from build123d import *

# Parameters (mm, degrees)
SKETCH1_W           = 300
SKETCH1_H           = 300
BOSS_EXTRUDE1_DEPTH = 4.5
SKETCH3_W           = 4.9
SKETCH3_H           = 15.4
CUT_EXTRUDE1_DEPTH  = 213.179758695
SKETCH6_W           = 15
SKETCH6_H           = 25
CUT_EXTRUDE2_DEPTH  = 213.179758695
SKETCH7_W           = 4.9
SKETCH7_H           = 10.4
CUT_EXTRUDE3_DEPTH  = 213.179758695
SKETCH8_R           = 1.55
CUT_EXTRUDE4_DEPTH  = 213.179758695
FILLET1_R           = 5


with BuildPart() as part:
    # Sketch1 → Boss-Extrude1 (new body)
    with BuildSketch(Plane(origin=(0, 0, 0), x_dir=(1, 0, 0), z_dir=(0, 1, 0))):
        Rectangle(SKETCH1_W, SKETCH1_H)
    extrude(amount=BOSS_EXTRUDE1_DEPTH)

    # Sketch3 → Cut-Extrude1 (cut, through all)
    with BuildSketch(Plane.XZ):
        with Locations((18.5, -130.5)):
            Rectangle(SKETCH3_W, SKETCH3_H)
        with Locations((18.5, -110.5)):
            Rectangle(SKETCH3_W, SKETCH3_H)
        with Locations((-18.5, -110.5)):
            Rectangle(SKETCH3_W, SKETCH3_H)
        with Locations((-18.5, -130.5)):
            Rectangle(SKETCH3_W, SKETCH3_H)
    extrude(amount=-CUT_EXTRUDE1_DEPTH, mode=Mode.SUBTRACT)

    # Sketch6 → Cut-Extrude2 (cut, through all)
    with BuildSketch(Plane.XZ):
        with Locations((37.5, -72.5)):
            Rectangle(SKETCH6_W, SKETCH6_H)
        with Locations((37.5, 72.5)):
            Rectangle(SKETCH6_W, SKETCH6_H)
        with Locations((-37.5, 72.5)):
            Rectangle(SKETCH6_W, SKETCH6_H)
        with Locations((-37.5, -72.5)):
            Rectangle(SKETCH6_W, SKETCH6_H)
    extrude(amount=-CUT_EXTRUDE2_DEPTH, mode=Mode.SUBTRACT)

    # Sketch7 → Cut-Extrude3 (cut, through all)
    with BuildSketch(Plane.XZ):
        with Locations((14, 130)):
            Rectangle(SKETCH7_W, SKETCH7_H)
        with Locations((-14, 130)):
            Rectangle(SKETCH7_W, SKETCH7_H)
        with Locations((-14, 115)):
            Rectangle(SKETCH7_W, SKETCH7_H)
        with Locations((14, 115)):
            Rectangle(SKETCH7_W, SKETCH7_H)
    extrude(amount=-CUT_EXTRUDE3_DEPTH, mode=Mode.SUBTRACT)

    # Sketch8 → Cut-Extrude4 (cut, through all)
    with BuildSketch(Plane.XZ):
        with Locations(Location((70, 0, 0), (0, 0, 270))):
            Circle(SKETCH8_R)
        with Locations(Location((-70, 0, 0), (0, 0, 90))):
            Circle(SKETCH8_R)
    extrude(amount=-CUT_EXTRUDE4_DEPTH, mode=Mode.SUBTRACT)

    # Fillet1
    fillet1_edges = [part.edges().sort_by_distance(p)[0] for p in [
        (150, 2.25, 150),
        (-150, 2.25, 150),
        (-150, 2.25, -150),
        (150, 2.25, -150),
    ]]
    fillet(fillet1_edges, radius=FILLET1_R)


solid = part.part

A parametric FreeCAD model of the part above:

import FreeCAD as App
import Part
import Sketcher
from FreeCAD import Vector
Q = App.Units.Quantity


def edges_at(feature, points):
    """Names of the edges that pass closest to the given points."""
    edges = feature.Shape.Edges
    near = lambda p: min(range(len(edges)), key=lambda i: edges[i].distToShape(Part.Vertex(*p))[0])
    return sorted({f"Edge{near(p) + 1}" for p in points})

doc = App.newDocument("Part")
params = doc.addObject("Spreadsheet::Sheet", "Params")
for row, (alias, value) in enumerate([
    ("sketch1_width", "300 mm"),
    ("pad1_length", "4.5 mm"),
    ("sketch2_width", "4.9 mm"),
    ("sketch2_height", "15.4 mm"),
    ("sketch3_width", "15 mm"),
    ("sketch3_height", "25 mm"),
    ("sketch4_width", "4.9 mm"),
    ("sketch4_height", "10.4 mm"),
    ("sketch5_diameter", "3.1 mm"),
    ("fillet_radius", "5 mm"),
], start=1):
    params.set(f"A{row}", alias)
    params.set(f"B{row}", "=" + value)
    params.setAlias(f"B{row}", alias)

body = doc.addObject("PartDesign::Body", "Body")

# Sketch on XZ plane
sketch1 = body.newObject("Sketcher::SketchObject", "Sketch")
sketch1.AttachmentSupport = (doc.getObject("XZ_Plane"), [""])
sketch1.MapMode = "FlatFace"
sketch1.addGeometry([
    Part.LineSegment(Vector(-150, -150, 0), Vector(-150, 150, 0)),
    Part.LineSegment(Vector(-150, 150, 0), Vector(150, 150, 0)),
    Part.LineSegment(Vector(150, 150, 0), Vector(150, -150, 0)),
    Part.LineSegment(Vector(150, -150, 0), Vector(-150, -150, 0)),
], False)
sketch1.addConstraint([
    Sketcher.Constraint("Coincident", 0, 2, 1, 1),
    Sketcher.Constraint("Coincident", 1, 2, 2, 1),
    Sketcher.Constraint("Coincident", 2, 2, 3, 1),
    Sketcher.Constraint("Coincident", 3, 2, 0, 1),
    Sketcher.Constraint("Vertical", 0),
    Sketcher.Constraint("Horizontal", 1),
    Sketcher.Constraint("Vertical", 2),
    Sketcher.Constraint("Horizontal", 3),
    Sketcher.Constraint("Symmetric", 0, 2, 2, 2, -1, 1),
    Sketcher.Constraint("Equal", 3, 0),
    Sketcher.Constraint("DistanceX", 1, 1, 1, 2, Q("300 mm")),
])
sketch1.setExpression("Constraints[10]", "Params.sketch1_width")
pad1 = body.newObject("PartDesign::Pad", "Pad")
pad1.Profile = sketch1
pad1.setExpression("Length", "Params.pad1_length")
pad1.Reversed = True

# Sketch on XZ plane
sketch2 = body.newObject("Sketcher::SketchObject", "Sketch001")
sketch2.AttachmentSupport = (doc.getObject("XZ_Plane"), [""])
sketch2.MapMode = "FlatFace"
sketch2.addGeometry([
    Part.LineSegment(Vector(16.1, -122.8, 0), Vector(16.1, -138.2, 0)),  # 0
    Part.LineSegment(Vector(16.1, -138.2, 0), Vector(20.9, -138.2, 0)),  # 1
    Part.LineSegment(Vector(20.9, -138.2, 0), Vector(20.9, -122.8, 0)),  # 2
    Part.LineSegment(Vector(20.9, -122.8, 0), Vector(16.1, -122.8, 0)),  # 3
    Part.LineSegment(Vector(16.1, -102.8, 0), Vector(16.1, -118.2, 0)),  # 4
    Part.LineSegment(Vector(16.1, -118.2, 0), Vector(20.9, -118.2, 0)),  # 5
    Part.LineSegment(Vector(20.9, -118.2, 0), Vector(20.9, -102.8, 0)),  # 6
    Part.LineSegment(Vector(20.9, -102.8, 0), Vector(16.1, -102.8, 0)),  # 7
    Part.LineSegment(Vector(-20.9, -102.8, 0), Vector(-20.9, -118.2, 0)),  # 8
    Part.LineSegment(Vector(-20.9, -118.2, 0), Vector(-16.1, -118.2, 0)),  # 9
    Part.LineSegment(Vector(-16.1, -118.2, 0), Vector(-16.1, -102.8, 0)),  # 10
    Part.LineSegment(Vector(-16.1, -102.8, 0), Vector(-20.9, -102.8, 0)),  # 11
    Part.LineSegment(Vector(-20.9, -122.8, 0), Vector(-20.9, -138.2, 0)),  # 12
    Part.LineSegment(Vector(-20.9, -138.2, 0), Vector(-16.1, -138.2, 0)),  # 13
    Part.LineSegment(Vector(-16.1, -138.2, 0), Vector(-16.1, -122.8, 0)),  # 14
    Part.LineSegment(Vector(-16.1, -122.8, 0), Vector(-20.9, -122.8, 0)),  # 15
], False)
sketch2.addConstraint([
    Sketcher.Constraint("Coincident", 0, 2, 1, 1),
    Sketcher.Constraint("Coincident", 1, 2, 2, 1),
    Sketcher.Constraint("Coincident", 2, 2, 3, 1),
    Sketcher.Constraint("Coincident", 3, 2, 0, 1),
    Sketcher.Constraint("Coincident", 4, 2, 5, 1),
    Sketcher.Constraint("Coincident", 5, 2, 6, 1),
    Sketcher.Constraint("Coincident", 6, 2, 7, 1),
    Sketcher.Constraint("Coincident", 7, 2, 4, 1),
    Sketcher.Constraint("Coincident", 8, 2, 9, 1),
    Sketcher.Constraint("Coincident", 9, 2, 10, 1),
    Sketcher.Constraint("Coincident", 10, 2, 11, 1),
    Sketcher.Constraint("Coincident", 11, 2, 8, 1),
    Sketcher.Constraint("Coincident", 12, 2, 13, 1),
    Sketcher.Constraint("Coincident", 13, 2, 14, 1),
    Sketcher.Constraint("Coincident", 14, 2, 15, 1),
    Sketcher.Constraint("Coincident", 15, 2, 12, 1),
    Sketcher.Constraint("Vertical", 0),
    Sketcher.Constraint("Horizontal", 1),
    Sketcher.Constraint("Vertical", 2),
    Sketcher.Constraint("Horizontal", 3),
    Sketcher.Constraint("Vertical", 4),
    Sketcher.Constraint("Horizontal", 5),
    Sketcher.Constraint("Vertical", 6),
    Sketcher.Constraint("Horizontal", 7),
    Sketcher.Constraint("Vertical", 8),
    Sketcher.Constraint("Horizontal", 9),
    Sketcher.Constraint("Vertical", 10),
    Sketcher.Constraint("Horizontal", 11),
    Sketcher.Constraint("Vertical", 12),
    Sketcher.Constraint("Horizontal", 13),
    Sketcher.Constraint("Vertical", 14),
    Sketcher.Constraint("Horizontal", 15),
    Sketcher.Constraint("Symmetric", 5, 2, 8, 2, -2),
    Sketcher.Constraint("Symmetric", 7, 2, 10, 2, -2),
    Sketcher.Constraint("Symmetric", 1, 2, 12, 2, -2),
    Sketcher.Constraint("Symmetric", 3, 2, 14, 2, -2),
    Sketcher.Constraint("Vertical", 3, 2, 4, 2),
    Sketcher.Constraint("Vertical", 2, 2, 5, 2),
    Sketcher.Constraint("Equal", 2, 4),
    Sketcher.Constraint("DistanceX", 1, 1, 1, 2, Q("4.9 mm")),
    Sketcher.Constraint("DistanceY", 0, 2, 0, 1, Q("15.4 mm")),
    Sketcher.Constraint("DistanceY", 0, 2, 4, 2, Q("20 mm")),
    Sketcher.Constraint("DistanceX", 8, 2, 4, 2, Q("37 mm")),
    Sketcher.Constraint("DistanceY", 0, 2, -1, 1, Q("138.2 mm")),
])
sketch2.setExpression("Constraints[39]", "Params.sketch2_width")
sketch2.setExpression("Constraints[40]", "Params.sketch2_height")
pocket1 = body.newObject("PartDesign::Pocket", "Pocket")
pocket1.Profile = sketch2
pocket1.Type = "ThroughAll"

# Sketch on XZ plane
sketch3 = body.newObject("Sketcher::SketchObject", "Sketch002")
sketch3.AttachmentSupport = (doc.getObject("XZ_Plane"), [""])
sketch3.MapMode = "FlatFace"
sketch3.addGeometry([
    Part.LineSegment(Vector(30, -60, 0), Vector(30, -85, 0)),  # 0
    Part.LineSegment(Vector(30, -85, 0), Vector(45, -85, 0)),  # 1
    Part.LineSegment(Vector(45, -85, 0), Vector(45, -60, 0)),  # 2
    Part.LineSegment(Vector(45, -60, 0), Vector(30, -60, 0)),  # 3
    Part.LineSegment(Vector(30, 85, 0), Vector(30, 60, 0)),  # 4
    Part.LineSegment(Vector(30, 60, 0), Vector(45, 60, 0)),  # 5
    Part.LineSegment(Vector(45, 60, 0), Vector(45, 85, 0)),  # 6
    Part.LineSegment(Vector(45, 85, 0), Vector(30, 85, 0)),  # 7
    Part.LineSegment(Vector(-45, 85, 0), Vector(-45, 60, 0)),  # 8
    Part.LineSegment(Vector(-45, 60, 0), Vector(-30, 60, 0)),  # 9
    Part.LineSegment(Vector(-30, 60, 0), Vector(-30, 85, 0)),  # 10
    Part.LineSegment(Vector(-30, 85, 0), Vector(-45, 85, 0)),  # 11
    Part.LineSegment(Vector(-45, -60, 0), Vector(-45, -85, 0)),  # 12
    Part.LineSegment(Vector(-45, -85, 0), Vector(-30, -85, 0)),  # 13
    Part.LineSegment(Vector(-30, -85, 0), Vector(-30, -60, 0)),  # 14
    Part.LineSegment(Vector(-30, -60, 0), Vector(-45, -60, 0)),  # 15
], False)
sketch3.addConstraint([
    Sketcher.Constraint("Coincident", 0, 2, 1, 1),
    Sketcher.Constraint("Coincident", 1, 2, 2, 1),
    Sketcher.Constraint("Coincident", 2, 2, 3, 1),
    Sketcher.Constraint("Coincident", 3, 2, 0, 1),
    Sketcher.Constraint("Coincident", 4, 2, 5, 1),
    Sketcher.Constraint("Coincident", 5, 2, 6, 1),
    Sketcher.Constraint("Coincident", 6, 2, 7, 1),
    Sketcher.Constraint("Coincident", 7, 2, 4, 1),
    Sketcher.Constraint("Coincident", 8, 2, 9, 1),
    Sketcher.Constraint("Coincident", 9, 2, 10, 1),
    Sketcher.Constraint("Coincident", 10, 2, 11, 1),
    Sketcher.Constraint("Coincident", 11, 2, 8, 1),
    Sketcher.Constraint("Coincident", 12, 2, 13, 1),
    Sketcher.Constraint("Coincident", 13, 2, 14, 1),
    Sketcher.Constraint("Coincident", 14, 2, 15, 1),
    Sketcher.Constraint("Coincident", 15, 2, 12, 1),
    Sketcher.Constraint("Vertical", 0),
    Sketcher.Constraint("Horizontal", 1),
    Sketcher.Constraint("Vertical", 2),
    Sketcher.Constraint("Horizontal", 3),
    Sketcher.Constraint("Vertical", 4),
    Sketcher.Constraint("Horizontal", 5),
    Sketcher.Constraint("Vertical", 6),
    Sketcher.Constraint("Horizontal", 7),
    Sketcher.Constraint("Vertical", 8),
    Sketcher.Constraint("Horizontal", 9),
    Sketcher.Constraint("Vertical", 10),
    Sketcher.Constraint("Horizontal", 11),
    Sketcher.Constraint("Vertical", 12),
    Sketcher.Constraint("Horizontal", 13),
    Sketcher.Constraint("Vertical", 14),
    Sketcher.Constraint("Horizontal", 15),
    Sketcher.Constraint("Symmetric", 2, 2, 8, 2, -1, 1),
    Sketcher.Constraint("Symmetric", 0, 2, 10, 2, -1, 1),
    Sketcher.Constraint("Symmetric", 6, 2, 12, 2, -1, 1),
    Sketcher.Constraint("Symmetric", 4, 2, 14, 2, -1, 1),
    Sketcher.Constraint("Symmetric", 5, 2, 8, 2, -2),
    Sketcher.Constraint("Symmetric", 7, 2, 10, 2, -2),
    Sketcher.Constraint("DistanceX", 1, 1, 1, 2, Q("15 mm")),
    Sketcher.Constraint("DistanceY", 0, 2, 0, 1, Q("25 mm")),
    Sketcher.Constraint("DistanceX", -1, 1, 0, 2, Q("30 mm")),
    Sketcher.Constraint("DistanceY", 0, 2, -1, 1, Q("85 mm")),
])
sketch3.setExpression("Constraints[38]", "Params.sketch3_width")
sketch3.setExpression("Constraints[39]", "Params.sketch3_height")
pocket2 = body.newObject("PartDesign::Pocket", "Pocket001")
pocket2.Profile = sketch3
pocket2.Type = "ThroughAll"

# Sketch on XZ plane
sketch4 = body.newObject("Sketcher::SketchObject", "Sketch003")
sketch4.AttachmentSupport = (doc.getObject("XZ_Plane"), [""])
sketch4.MapMode = "FlatFace"
sketch4.addGeometry([
    Part.LineSegment(Vector(11.6, 135.2, 0), Vector(11.6, 124.8, 0)),  # 0
    Part.LineSegment(Vector(11.6, 124.8, 0), Vector(16.4, 124.8, 0)),  # 1
    Part.LineSegment(Vector(16.4, 124.8, 0), Vector(16.4, 135.2, 0)),  # 2
    Part.LineSegment(Vector(16.4, 135.2, 0), Vector(11.6, 135.2, 0)),  # 3
    Part.LineSegment(Vector(-16.4, 135.2, 0), Vector(-16.4, 124.8, 0)),  # 4
    Part.LineSegment(Vector(-16.4, 124.8, 0), Vector(-11.6, 124.8, 0)),  # 5
    Part.LineSegment(Vector(-11.6, 124.8, 0), Vector(-11.6, 135.2, 0)),  # 6
    Part.LineSegment(Vector(-11.6, 135.2, 0), Vector(-16.4, 135.2, 0)),  # 7
    Part.LineSegment(Vector(-16.4, 120.2, 0), Vector(-16.4, 109.8, 0)),  # 8
    Part.LineSegment(Vector(-16.4, 109.8, 0), Vector(-11.6, 109.8, 0)),  # 9
    Part.LineSegment(Vector(-11.6, 109.8, 0), Vector(-11.6, 120.2, 0)),  # 10
    Part.LineSegment(Vector(-11.6, 120.2, 0), Vector(-16.4, 120.2, 0)),  # 11
    Part.LineSegment(Vector(11.6, 120.2, 0), Vector(11.6, 109.8, 0)),  # 12
    Part.LineSegment(Vector(11.6, 109.8, 0), Vector(16.4, 109.8, 0)),  # 13
    Part.LineSegment(Vector(16.4, 109.8, 0), Vector(16.4, 120.2, 0)),  # 14
    Part.LineSegment(Vector(16.4, 120.2, 0), Vector(11.6, 120.2, 0)),  # 15
], False)
sketch4.addConstraint([
    Sketcher.Constraint("Coincident", 0, 2, 1, 1),
    Sketcher.Constraint("Coincident", 1, 2, 2, 1),
    Sketcher.Constraint("Coincident", 2, 2, 3, 1),
    Sketcher.Constraint("Coincident", 3, 2, 0, 1),
    Sketcher.Constraint("Coincident", 4, 2, 5, 1),
    Sketcher.Constraint("Coincident", 5, 2, 6, 1),
    Sketcher.Constraint("Coincident", 6, 2, 7, 1),
    Sketcher.Constraint("Coincident", 7, 2, 4, 1),
    Sketcher.Constraint("Coincident", 8, 2, 9, 1),
    Sketcher.Constraint("Coincident", 9, 2, 10, 1),
    Sketcher.Constraint("Coincident", 10, 2, 11, 1),
    Sketcher.Constraint("Coincident", 11, 2, 8, 1),
    Sketcher.Constraint("Coincident", 12, 2, 13, 1),
    Sketcher.Constraint("Coincident", 13, 2, 14, 1),
    Sketcher.Constraint("Coincident", 14, 2, 15, 1),
    Sketcher.Constraint("Coincident", 15, 2, 12, 1),
    Sketcher.Constraint("Vertical", 0),
    Sketcher.Constraint("Horizontal", 1),
    Sketcher.Constraint("Vertical", 2),
    Sketcher.Constraint("Horizontal", 3),
    Sketcher.Constraint("Vertical", 4),
    Sketcher.Constraint("Horizontal", 5),
    Sketcher.Constraint("Vertical", 6),
    Sketcher.Constraint("Horizontal", 7),
    Sketcher.Constraint("Vertical", 8),
    Sketcher.Constraint("Horizontal", 9),
    Sketcher.Constraint("Vertical", 10),
    Sketcher.Constraint("Horizontal", 11),
    Sketcher.Constraint("Vertical", 12),
    Sketcher.Constraint("Horizontal", 13),
    Sketcher.Constraint("Vertical", 14),
    Sketcher.Constraint("Horizontal", 15),
    Sketcher.Constraint("Symmetric", 1, 2, 4, 2, -2),
    Sketcher.Constraint("Symmetric", 3, 2, 6, 2, -2),
    Sketcher.Constraint("Symmetric", 9, 2, 12, 2, -2),
    Sketcher.Constraint("Symmetric", 11, 2, 14, 2, -2),
    Sketcher.Constraint("Vertical", 7, 2, 8, 2),
    Sketcher.Constraint("Vertical", 6, 2, 9, 2),
    Sketcher.Constraint("Equal", 6, 8),
    Sketcher.Constraint("DistanceX", 1, 1, 1, 2, Q("4.9 mm")),
    Sketcher.Constraint("DistanceY", 0, 2, 0, 1, Q("10.4 mm")),
    Sketcher.Constraint("DistanceX", 4, 2, 0, 2, Q("28 mm")),
    Sketcher.Constraint("DistanceY", 8, 2, 4, 2, Q("15 mm")),
    Sketcher.Constraint("DistanceY", -1, 1, 0, 2, Q("124.8 mm")),
])
sketch4.setExpression("Constraints[39]", "Params.sketch4_width")
sketch4.setExpression("Constraints[40]", "Params.sketch4_height")
pocket3 = body.newObject("PartDesign::Pocket", "Pocket002")
pocket3.Profile = sketch4
pocket3.Type = "ThroughAll"

# Sketch on XZ plane
sketch5 = body.newObject("Sketcher::SketchObject", "Sketch004")
sketch5.AttachmentSupport = (doc.getObject("XZ_Plane"), [""])
sketch5.MapMode = "FlatFace"
sketch5.addGeometry([
    Part.Circle(Vector(70, 0, 0), Vector(0, 0, 1), 1.6),
    Part.Circle(Vector(-70, 0, 0), Vector(0, 0, 1), 1.6),
], False)
sketch5.addConstraint([
    Sketcher.Constraint("Equal", 0, 1),
    Sketcher.Constraint("Symmetric", 0, 3, 1, 3, -1, 1),
    Sketcher.Constraint("PointOnObject", 0, 3, -1),
    Sketcher.Constraint("Diameter", 0, Q("3.1 mm")),
    Sketcher.Constraint("DistanceX", -1, 1, 0, 3, Q("70 mm")),
])
sketch5.setExpression("Constraints[3]", "Params.sketch5_diameter")
pocket4 = body.newObject("PartDesign::Pocket", "Pocket003")
pocket4.Profile = sketch5
pocket4.Type = "ThroughAll"
doc.recompute()

fillet = body.newObject("PartDesign::Fillet", "Fillet")
fillet.Base = (pocket4, edges_at(pocket4, [
    (150, 2.25, 150),
    (-150, 2.25, 150),
    (-150, 2.25, -150),
    (150, 2.25, -150),
]))
fillet.setExpression("Radius", "Params.fillet_radius")

doc.recompute()
